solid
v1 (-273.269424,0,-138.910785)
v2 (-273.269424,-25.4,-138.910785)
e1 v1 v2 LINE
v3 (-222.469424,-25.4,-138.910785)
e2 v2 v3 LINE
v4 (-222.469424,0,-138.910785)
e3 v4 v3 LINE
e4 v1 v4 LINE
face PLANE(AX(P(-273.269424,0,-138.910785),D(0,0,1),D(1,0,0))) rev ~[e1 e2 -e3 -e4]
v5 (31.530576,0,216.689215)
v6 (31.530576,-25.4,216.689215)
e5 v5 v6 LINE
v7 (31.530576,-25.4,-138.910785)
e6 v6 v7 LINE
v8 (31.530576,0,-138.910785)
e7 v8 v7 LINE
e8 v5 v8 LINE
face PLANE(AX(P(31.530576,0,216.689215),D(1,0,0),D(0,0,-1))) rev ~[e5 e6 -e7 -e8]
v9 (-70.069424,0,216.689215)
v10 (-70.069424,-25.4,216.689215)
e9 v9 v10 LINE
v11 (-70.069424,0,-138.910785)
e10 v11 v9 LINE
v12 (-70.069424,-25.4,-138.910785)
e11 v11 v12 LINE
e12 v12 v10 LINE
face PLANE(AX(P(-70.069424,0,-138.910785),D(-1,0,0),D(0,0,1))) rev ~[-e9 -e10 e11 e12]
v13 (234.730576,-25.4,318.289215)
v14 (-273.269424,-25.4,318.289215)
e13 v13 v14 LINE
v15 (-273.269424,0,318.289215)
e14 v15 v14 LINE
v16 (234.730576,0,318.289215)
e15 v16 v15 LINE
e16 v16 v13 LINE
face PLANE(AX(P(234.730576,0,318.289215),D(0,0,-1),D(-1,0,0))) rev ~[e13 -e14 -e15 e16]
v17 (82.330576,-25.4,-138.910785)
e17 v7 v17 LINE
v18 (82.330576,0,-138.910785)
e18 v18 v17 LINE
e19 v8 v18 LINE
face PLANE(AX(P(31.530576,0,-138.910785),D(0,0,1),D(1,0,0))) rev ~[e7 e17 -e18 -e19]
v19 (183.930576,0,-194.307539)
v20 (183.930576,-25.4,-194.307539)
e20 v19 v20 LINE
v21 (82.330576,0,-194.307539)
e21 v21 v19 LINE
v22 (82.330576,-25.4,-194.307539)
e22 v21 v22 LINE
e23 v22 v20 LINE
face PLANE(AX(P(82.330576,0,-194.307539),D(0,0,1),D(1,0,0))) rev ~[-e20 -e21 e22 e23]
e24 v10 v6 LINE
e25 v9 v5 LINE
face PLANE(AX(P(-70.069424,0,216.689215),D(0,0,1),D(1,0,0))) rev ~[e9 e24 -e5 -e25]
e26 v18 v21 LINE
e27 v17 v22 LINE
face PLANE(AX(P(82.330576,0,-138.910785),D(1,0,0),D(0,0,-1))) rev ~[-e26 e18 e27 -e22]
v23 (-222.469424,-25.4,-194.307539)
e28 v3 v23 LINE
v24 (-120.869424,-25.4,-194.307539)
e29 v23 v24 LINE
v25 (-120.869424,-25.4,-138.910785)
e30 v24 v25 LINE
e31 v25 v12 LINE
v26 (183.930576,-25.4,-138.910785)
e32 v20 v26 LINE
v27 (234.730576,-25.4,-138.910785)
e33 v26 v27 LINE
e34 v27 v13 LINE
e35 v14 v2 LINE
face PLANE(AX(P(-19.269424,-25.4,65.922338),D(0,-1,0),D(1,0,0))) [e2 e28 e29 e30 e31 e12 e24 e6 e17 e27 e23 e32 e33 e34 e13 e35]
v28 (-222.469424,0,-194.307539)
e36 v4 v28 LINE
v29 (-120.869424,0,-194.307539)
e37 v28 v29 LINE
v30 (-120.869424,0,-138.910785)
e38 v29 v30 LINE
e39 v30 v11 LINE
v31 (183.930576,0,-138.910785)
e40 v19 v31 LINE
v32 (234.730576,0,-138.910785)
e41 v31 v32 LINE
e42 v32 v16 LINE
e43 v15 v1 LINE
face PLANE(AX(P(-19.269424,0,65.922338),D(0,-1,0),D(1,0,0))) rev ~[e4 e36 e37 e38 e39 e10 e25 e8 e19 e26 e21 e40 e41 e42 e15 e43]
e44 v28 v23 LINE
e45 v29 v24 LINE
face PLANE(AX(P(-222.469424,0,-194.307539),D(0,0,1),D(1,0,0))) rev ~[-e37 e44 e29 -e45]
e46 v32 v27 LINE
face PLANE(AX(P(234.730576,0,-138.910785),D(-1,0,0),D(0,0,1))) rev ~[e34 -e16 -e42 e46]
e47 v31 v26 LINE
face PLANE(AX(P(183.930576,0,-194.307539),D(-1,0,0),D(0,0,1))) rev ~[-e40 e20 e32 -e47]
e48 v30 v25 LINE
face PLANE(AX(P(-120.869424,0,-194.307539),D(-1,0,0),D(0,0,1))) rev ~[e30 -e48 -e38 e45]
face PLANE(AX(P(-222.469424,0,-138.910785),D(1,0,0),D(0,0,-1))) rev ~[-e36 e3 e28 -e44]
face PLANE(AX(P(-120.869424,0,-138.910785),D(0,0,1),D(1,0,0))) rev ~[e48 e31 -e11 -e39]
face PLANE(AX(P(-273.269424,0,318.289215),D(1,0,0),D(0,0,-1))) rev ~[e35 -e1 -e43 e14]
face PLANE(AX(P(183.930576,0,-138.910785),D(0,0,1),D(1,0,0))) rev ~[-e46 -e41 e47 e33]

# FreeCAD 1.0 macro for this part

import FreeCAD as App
import Part
import Sketcher
from FreeCAD import Vector
Q = App.Units.Quantity

doc = App.newDocument("Part")
body = doc.addObject("PartDesign::Body", "Body")

sketch1 = doc.addObject("Sketcher::SketchObject", "Sketch")
body.addObject(sketch1)
sketch1.AttachmentSupport = (doc.XZ_Plane, [""])
sketch1.MapMode = "FlatFace"
sketch1.addGeometry(Part.LineSegment(Vector(235, 318, 0), Vector(-273, 318, 0)), False)
sketch1.addGeometry(Part.LineSegment(Vector(-273, 318, 0), Vector(-273, -139, 0)), False)
sketch1.addGeometry(Part.LineSegment(Vector(-273, -139, 0), Vector(-222, -139, 0)), False)
sketch1.addGeometry(Part.LineSegment(Vector(-222, -139, 0), Vector(-222, -194, 0)), False)
sketch1.addGeometry(Part.LineSegment(Vector(-222, -194, 0), Vector(-121, -194, 0)), False)
sketch1.addGeometry(Part.LineSegment(Vector(-121, -194, 0), Vector(-121, -139, 0)), False)
sketch1.addGeometry(Part.LineSegment(Vector(-121, -139, 0), Vector(-70, -139, 0)), False)
sketch1.addGeometry(Part.LineSegment(Vector(-70, -139, 0), Vector(-70, 217, 0)), False)
sketch1.addGeometry(Part.LineSegment(Vector(-70, 217, 0), Vector(32, 217, 0)), False)
sketch1.addGeometry(Part.LineSegment(Vector(32, 217, 0), Vector(32, -139, 0)), False)
sketch1.addGeometry(Part.LineSegment(Vector(32, -139, 0), Vector(82, -139, 0)), False)
sketch1.addGeometry(Part.LineSegment(Vector(82, -139, 0), Vector(82, -194, 0)), False)
sketch1.addGeometry(Part.LineSegment(Vector(82, -194, 0), Vector(184, -194, 0)), False)
sketch1.addGeometry(Part.LineSegment(Vector(184, -194, 0), Vector(184, -139, 0)), False)
sketch1.addGeometry(Part.LineSegment(Vector(184, -139, 0), Vector(235, -139, 0)), False)
sketch1.addGeometry(Part.LineSegment(Vector(235, -139, 0), Vector(235, 318, 0)), False)
sketch1.addConstraint(Sketcher.Constraint("Coincident", 0, 2, 1, 1))
sketch1.addConstraint(Sketcher.Constraint("Coincident", 1, 2, 2, 1))
sketch1.addConstraint(Sketcher.Constraint("Coincident", 2, 2, 3, 1))
sketch1.addConstraint(Sketcher.Constraint("Coincident", 3, 2, 4, 1))
sketch1.addConstraint(Sketcher.Constraint("Coincident", 4, 2, 5, 1))
sketch1.addConstraint(Sketcher.Constraint("Coincident", 5, 2, 6, 1))
sketch1.addConstraint(Sketcher.Constraint("Coincident", 6, 2, 7, 1))
sketch1.addConstraint(Sketcher.Constraint("Coincident", 7, 2, 8, 1))
sketch1.addConstraint(Sketcher.Constraint("Coincident", 8, 2, 9, 1))
sketch1.addConstraint(Sketcher.Constraint("Coincident", 9, 2, 10, 1))
sketch1.addConstraint(Sketcher.Constraint("Coincident", 10, 2, 11, 1))
sketch1.addConstraint(Sketcher.Constraint("Coincident", 11, 2, 12, 1))
sketch1.addConstraint(Sketcher.Constraint("Coincident", 12, 2, 13, 1))
sketch1.addConstraint(Sketcher.Constraint("Coincident", 13, 2, 14, 1))
sketch1.addConstraint(Sketcher.Constraint("Coincident", 14, 2, 15, 1))
sketch1.addConstraint(Sketcher.Constraint("Coincident", 15, 2, 0, 1))
sketch1.addConstraint(Sketcher.Constraint("Horizontal", 0))
sketch1.addConstraint(Sketcher.Constraint("Vertical", 1))
sketch1.addConstraint(Sketcher.Constraint("Horizontal", 2))
sketch1.addConstraint(Sketcher.Constraint("Vertical", 3))
sketch1.addConstraint(Sketcher.Constraint("Horizontal", 4))
sketch1.addConstraint(Sketcher.Constraint("Vertical", 5))
sketch1.addConstraint(Sketcher.Constraint("Horizontal", 6))
sketch1.addConstraint(Sketcher.Constraint("Vertical", 7))
sketch1.addConstraint(Sketcher.Constraint("Horizontal", 8))
sketch1.addConstraint(Sketcher.Constraint("Vertical", 9))
sketch1.addConstraint(Sketcher.Constraint("Horizontal", 10))
sketch1.addConstraint(Sketcher.Constraint("Vertical", 11))
sketch1.addConstraint(Sketcher.Constraint("Horizontal", 12))
sketch1.addConstraint(Sketcher.Constraint("Vertical", 13))
sketch1.addConstraint(Sketcher.Constraint("Horizontal", 14))
sketch1.addConstraint(Sketcher.Constraint("Vertical", 15))
sketch1.addConstraint(Sketcher.Constraint("Horizontal", 2, 2, 5, 2))
sketch1.addConstraint(Sketcher.Constraint("Horizontal", 6, 2, 9, 2))
sketch1.addConstraint(Sketcher.Constraint("Horizontal", 4, 2, 11, 2))
sketch1.addConstraint(Sketcher.Constraint("Horizontal", 10, 2, 13, 2))
sketch1.addConstraint(Sketcher.Constraint("Equal", 2, 6))
sketch1.addConstraint(Sketcher.Constraint("Equal", 4, 8))
sketch1.addConstraint(Sketcher.Constraint("Equal", 6, 10))
sketch1.addConstraint(Sketcher.Constraint("Equal", 8, 12))
sketch1.addConstraint(Sketcher.Constraint("Equal", 10, 14))
sketch1.addConstraint(Sketcher.Constraint("DistanceX", 0, 2, 0, 1, Q("20 in")))
sketch1.addConstraint(Sketcher.Constraint("DistanceX", 2, 1, 2, 2, Q("2 in")))
sketch1.addConstraint(Sketcher.Constraint("DistanceY", 1, 2, 1, 1, Q("18 in")))
sketch1.addConstraint(Sketcher.Constraint("DistanceY", 7, 1, 7, 2, Q("14 in")))
sketch1.addConstraint(Sketcher.Constraint("DistanceY", 3, 2, 3, 1, 55.396754))
sketch1.addConstraint(Sketcher.Constraint("DistanceY", 3, 2, -1, 1, 194.307539))
sketch1.addConstraint(Sketcher.Constraint("DistanceX", 0, 2, -1, 1, 273.269424))
pad1 = doc.addObject("PartDesign::Pad", "Pad")
body.addObject(pad1)
pad1.Profile = sketch1
pad1.Length = Q("1 in")

doc.recompute()
